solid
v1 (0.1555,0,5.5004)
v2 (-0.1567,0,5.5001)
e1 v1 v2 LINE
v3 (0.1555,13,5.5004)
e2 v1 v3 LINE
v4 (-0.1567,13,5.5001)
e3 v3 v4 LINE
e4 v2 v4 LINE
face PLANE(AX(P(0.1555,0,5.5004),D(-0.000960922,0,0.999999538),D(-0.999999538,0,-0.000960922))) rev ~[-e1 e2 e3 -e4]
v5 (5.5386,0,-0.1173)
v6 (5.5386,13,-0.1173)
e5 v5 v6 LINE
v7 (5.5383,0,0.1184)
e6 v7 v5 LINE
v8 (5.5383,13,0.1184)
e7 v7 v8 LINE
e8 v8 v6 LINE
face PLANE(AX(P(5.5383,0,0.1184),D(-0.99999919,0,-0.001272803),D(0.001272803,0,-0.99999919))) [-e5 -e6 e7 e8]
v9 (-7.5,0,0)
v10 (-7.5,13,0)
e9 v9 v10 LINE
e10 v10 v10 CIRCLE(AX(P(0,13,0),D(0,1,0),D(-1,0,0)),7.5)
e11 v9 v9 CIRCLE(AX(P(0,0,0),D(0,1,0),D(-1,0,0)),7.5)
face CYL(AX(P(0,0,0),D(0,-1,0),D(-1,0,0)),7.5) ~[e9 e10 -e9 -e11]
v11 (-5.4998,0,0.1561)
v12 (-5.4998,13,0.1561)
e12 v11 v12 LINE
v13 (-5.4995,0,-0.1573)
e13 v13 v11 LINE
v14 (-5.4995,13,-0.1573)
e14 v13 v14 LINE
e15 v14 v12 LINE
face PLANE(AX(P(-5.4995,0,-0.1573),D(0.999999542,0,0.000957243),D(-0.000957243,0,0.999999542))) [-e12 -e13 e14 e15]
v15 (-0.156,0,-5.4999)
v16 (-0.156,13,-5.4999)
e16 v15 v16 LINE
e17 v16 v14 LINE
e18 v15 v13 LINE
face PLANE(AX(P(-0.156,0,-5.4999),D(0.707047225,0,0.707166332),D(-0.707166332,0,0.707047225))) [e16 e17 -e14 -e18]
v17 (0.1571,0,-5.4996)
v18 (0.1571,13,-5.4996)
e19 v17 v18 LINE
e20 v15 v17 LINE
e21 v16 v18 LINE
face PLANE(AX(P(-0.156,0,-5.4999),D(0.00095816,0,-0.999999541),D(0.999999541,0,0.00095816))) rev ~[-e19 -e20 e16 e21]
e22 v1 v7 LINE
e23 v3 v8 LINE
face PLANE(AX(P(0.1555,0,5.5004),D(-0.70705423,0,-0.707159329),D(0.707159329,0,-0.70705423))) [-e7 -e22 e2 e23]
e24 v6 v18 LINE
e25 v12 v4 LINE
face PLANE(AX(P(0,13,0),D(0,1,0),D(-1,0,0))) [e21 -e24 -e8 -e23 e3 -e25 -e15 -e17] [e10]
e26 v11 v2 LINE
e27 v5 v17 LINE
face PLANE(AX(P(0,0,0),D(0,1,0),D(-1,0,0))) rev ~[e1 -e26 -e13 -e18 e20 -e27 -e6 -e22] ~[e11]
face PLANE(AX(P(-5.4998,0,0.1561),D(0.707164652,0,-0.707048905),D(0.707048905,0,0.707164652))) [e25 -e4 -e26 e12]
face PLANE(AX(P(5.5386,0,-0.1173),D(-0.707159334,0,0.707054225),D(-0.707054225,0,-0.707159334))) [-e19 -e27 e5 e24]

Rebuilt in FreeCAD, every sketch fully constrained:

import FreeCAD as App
import Part
import Sketcher
from FreeCAD import Vector


def add_polygon(sketch, points):
    """Adds a closed chain of lines whose ends are joined by coincident constraints."""
    first, n = sketch.GeometryCount, len(points)
    for a, b in zip(points, points[1:] + points[:1]):
        sketch.addGeometry(Part.LineSegment(App.Vector(*a, 0), App.Vector(*b, 0)), False)
    for i in range(n):
        sketch.addConstraint(Sketcher.Constraint("Coincident", first + i, 2, first + (i + 1) % n, 1))

doc = App.newDocument("Part")
body = doc.addObject("PartDesign::Body", "Body")

sketch1 = doc.addObject("Sketcher::SketchObject", "Sketch")
body.addObject(sketch1)
sketch1.AttachmentSupport = (doc.XZ_Plane, [""])
sketch1.MapMode = "FlatFace"
sketch1.addGeometry(Part.Circle(Vector(0, 0, 0), Vector(0, 0, 1), 8), False)
sketch1.addConstraint([
    Sketcher.Constraint("Coincident", 0, 3, -1, 1),
    Sketcher.Constraint("Diameter", 0, 15.0),
])
pad1 = doc.addObject("PartDesign::Pad", "Pad")
body.addObject(pad1)
pad1.Profile = sketch1
pad1.Length = 13
pad1.Reversed = True

sketch2 = doc.addObject("Sketcher::SketchObject", "Sketch001")
body.addObject(sketch2)
sketch2.AttachmentSupport = (doc.XZ_Plane, [""])
sketch2.MapMode = "FlatFace"
add_polygon(sketch2, [(5.54, 0.12), (0.16, 5.5), (-0.16, 5.5), (-5.5, 0.16), (-5.5, -0.16), (-0.16, -5.5), (0.16, -5.5), (5.54, -0.12)])
sketch2.addConstraint([
    Sketcher.Constraint("Perpendicular", 0, 2),
    Sketcher.Constraint("Perpendicular", 1, 3),
    Sketcher.Constraint("Perpendicular", 2, 4),
    Sketcher.Constraint("Perpendicular", 3, 5),
    Sketcher.Constraint("Perpendicular", 4, 6),
    Sketcher.Constraint("Perpendicular", 5, 7),
    Sketcher.Constraint("DistanceY", 4, 2, 1, 2, 11.0),
    Sketcher.Constraint("DistanceY", -1, 1, 1, 2, 5.5),
    Sketcher.Constraint("DistanceY", 4, 2, 0, 2, 11.0003),
    Sketcher.Constraint("DistanceY", 3, 2, 6, 2, 0.04),
    Sketcher.Constraint("Distance", 2, 7.557),
    Sketcher.Constraint("Distance", 5, 0.313),
    Sketcher.Constraint("DistanceY", -1, 1, 2, 2, 0.156),
    Sketcher.Constraint("DistanceX", 4, 2, -1, 1, 0.156),
    Sketcher.Constraint("DistanceX", 3, 2, 0, 2, 5.655),
    Sketcher.Constraint("DistanceX", 2, 2, 5, 2, 5.657),
])
pocket1 = doc.addObject("PartDesign::Pocket", "Pocket")
body.addObject(pocket1)
pocket1.Profile = sketch2
pocket1.Length = 13

doc.recompute()
